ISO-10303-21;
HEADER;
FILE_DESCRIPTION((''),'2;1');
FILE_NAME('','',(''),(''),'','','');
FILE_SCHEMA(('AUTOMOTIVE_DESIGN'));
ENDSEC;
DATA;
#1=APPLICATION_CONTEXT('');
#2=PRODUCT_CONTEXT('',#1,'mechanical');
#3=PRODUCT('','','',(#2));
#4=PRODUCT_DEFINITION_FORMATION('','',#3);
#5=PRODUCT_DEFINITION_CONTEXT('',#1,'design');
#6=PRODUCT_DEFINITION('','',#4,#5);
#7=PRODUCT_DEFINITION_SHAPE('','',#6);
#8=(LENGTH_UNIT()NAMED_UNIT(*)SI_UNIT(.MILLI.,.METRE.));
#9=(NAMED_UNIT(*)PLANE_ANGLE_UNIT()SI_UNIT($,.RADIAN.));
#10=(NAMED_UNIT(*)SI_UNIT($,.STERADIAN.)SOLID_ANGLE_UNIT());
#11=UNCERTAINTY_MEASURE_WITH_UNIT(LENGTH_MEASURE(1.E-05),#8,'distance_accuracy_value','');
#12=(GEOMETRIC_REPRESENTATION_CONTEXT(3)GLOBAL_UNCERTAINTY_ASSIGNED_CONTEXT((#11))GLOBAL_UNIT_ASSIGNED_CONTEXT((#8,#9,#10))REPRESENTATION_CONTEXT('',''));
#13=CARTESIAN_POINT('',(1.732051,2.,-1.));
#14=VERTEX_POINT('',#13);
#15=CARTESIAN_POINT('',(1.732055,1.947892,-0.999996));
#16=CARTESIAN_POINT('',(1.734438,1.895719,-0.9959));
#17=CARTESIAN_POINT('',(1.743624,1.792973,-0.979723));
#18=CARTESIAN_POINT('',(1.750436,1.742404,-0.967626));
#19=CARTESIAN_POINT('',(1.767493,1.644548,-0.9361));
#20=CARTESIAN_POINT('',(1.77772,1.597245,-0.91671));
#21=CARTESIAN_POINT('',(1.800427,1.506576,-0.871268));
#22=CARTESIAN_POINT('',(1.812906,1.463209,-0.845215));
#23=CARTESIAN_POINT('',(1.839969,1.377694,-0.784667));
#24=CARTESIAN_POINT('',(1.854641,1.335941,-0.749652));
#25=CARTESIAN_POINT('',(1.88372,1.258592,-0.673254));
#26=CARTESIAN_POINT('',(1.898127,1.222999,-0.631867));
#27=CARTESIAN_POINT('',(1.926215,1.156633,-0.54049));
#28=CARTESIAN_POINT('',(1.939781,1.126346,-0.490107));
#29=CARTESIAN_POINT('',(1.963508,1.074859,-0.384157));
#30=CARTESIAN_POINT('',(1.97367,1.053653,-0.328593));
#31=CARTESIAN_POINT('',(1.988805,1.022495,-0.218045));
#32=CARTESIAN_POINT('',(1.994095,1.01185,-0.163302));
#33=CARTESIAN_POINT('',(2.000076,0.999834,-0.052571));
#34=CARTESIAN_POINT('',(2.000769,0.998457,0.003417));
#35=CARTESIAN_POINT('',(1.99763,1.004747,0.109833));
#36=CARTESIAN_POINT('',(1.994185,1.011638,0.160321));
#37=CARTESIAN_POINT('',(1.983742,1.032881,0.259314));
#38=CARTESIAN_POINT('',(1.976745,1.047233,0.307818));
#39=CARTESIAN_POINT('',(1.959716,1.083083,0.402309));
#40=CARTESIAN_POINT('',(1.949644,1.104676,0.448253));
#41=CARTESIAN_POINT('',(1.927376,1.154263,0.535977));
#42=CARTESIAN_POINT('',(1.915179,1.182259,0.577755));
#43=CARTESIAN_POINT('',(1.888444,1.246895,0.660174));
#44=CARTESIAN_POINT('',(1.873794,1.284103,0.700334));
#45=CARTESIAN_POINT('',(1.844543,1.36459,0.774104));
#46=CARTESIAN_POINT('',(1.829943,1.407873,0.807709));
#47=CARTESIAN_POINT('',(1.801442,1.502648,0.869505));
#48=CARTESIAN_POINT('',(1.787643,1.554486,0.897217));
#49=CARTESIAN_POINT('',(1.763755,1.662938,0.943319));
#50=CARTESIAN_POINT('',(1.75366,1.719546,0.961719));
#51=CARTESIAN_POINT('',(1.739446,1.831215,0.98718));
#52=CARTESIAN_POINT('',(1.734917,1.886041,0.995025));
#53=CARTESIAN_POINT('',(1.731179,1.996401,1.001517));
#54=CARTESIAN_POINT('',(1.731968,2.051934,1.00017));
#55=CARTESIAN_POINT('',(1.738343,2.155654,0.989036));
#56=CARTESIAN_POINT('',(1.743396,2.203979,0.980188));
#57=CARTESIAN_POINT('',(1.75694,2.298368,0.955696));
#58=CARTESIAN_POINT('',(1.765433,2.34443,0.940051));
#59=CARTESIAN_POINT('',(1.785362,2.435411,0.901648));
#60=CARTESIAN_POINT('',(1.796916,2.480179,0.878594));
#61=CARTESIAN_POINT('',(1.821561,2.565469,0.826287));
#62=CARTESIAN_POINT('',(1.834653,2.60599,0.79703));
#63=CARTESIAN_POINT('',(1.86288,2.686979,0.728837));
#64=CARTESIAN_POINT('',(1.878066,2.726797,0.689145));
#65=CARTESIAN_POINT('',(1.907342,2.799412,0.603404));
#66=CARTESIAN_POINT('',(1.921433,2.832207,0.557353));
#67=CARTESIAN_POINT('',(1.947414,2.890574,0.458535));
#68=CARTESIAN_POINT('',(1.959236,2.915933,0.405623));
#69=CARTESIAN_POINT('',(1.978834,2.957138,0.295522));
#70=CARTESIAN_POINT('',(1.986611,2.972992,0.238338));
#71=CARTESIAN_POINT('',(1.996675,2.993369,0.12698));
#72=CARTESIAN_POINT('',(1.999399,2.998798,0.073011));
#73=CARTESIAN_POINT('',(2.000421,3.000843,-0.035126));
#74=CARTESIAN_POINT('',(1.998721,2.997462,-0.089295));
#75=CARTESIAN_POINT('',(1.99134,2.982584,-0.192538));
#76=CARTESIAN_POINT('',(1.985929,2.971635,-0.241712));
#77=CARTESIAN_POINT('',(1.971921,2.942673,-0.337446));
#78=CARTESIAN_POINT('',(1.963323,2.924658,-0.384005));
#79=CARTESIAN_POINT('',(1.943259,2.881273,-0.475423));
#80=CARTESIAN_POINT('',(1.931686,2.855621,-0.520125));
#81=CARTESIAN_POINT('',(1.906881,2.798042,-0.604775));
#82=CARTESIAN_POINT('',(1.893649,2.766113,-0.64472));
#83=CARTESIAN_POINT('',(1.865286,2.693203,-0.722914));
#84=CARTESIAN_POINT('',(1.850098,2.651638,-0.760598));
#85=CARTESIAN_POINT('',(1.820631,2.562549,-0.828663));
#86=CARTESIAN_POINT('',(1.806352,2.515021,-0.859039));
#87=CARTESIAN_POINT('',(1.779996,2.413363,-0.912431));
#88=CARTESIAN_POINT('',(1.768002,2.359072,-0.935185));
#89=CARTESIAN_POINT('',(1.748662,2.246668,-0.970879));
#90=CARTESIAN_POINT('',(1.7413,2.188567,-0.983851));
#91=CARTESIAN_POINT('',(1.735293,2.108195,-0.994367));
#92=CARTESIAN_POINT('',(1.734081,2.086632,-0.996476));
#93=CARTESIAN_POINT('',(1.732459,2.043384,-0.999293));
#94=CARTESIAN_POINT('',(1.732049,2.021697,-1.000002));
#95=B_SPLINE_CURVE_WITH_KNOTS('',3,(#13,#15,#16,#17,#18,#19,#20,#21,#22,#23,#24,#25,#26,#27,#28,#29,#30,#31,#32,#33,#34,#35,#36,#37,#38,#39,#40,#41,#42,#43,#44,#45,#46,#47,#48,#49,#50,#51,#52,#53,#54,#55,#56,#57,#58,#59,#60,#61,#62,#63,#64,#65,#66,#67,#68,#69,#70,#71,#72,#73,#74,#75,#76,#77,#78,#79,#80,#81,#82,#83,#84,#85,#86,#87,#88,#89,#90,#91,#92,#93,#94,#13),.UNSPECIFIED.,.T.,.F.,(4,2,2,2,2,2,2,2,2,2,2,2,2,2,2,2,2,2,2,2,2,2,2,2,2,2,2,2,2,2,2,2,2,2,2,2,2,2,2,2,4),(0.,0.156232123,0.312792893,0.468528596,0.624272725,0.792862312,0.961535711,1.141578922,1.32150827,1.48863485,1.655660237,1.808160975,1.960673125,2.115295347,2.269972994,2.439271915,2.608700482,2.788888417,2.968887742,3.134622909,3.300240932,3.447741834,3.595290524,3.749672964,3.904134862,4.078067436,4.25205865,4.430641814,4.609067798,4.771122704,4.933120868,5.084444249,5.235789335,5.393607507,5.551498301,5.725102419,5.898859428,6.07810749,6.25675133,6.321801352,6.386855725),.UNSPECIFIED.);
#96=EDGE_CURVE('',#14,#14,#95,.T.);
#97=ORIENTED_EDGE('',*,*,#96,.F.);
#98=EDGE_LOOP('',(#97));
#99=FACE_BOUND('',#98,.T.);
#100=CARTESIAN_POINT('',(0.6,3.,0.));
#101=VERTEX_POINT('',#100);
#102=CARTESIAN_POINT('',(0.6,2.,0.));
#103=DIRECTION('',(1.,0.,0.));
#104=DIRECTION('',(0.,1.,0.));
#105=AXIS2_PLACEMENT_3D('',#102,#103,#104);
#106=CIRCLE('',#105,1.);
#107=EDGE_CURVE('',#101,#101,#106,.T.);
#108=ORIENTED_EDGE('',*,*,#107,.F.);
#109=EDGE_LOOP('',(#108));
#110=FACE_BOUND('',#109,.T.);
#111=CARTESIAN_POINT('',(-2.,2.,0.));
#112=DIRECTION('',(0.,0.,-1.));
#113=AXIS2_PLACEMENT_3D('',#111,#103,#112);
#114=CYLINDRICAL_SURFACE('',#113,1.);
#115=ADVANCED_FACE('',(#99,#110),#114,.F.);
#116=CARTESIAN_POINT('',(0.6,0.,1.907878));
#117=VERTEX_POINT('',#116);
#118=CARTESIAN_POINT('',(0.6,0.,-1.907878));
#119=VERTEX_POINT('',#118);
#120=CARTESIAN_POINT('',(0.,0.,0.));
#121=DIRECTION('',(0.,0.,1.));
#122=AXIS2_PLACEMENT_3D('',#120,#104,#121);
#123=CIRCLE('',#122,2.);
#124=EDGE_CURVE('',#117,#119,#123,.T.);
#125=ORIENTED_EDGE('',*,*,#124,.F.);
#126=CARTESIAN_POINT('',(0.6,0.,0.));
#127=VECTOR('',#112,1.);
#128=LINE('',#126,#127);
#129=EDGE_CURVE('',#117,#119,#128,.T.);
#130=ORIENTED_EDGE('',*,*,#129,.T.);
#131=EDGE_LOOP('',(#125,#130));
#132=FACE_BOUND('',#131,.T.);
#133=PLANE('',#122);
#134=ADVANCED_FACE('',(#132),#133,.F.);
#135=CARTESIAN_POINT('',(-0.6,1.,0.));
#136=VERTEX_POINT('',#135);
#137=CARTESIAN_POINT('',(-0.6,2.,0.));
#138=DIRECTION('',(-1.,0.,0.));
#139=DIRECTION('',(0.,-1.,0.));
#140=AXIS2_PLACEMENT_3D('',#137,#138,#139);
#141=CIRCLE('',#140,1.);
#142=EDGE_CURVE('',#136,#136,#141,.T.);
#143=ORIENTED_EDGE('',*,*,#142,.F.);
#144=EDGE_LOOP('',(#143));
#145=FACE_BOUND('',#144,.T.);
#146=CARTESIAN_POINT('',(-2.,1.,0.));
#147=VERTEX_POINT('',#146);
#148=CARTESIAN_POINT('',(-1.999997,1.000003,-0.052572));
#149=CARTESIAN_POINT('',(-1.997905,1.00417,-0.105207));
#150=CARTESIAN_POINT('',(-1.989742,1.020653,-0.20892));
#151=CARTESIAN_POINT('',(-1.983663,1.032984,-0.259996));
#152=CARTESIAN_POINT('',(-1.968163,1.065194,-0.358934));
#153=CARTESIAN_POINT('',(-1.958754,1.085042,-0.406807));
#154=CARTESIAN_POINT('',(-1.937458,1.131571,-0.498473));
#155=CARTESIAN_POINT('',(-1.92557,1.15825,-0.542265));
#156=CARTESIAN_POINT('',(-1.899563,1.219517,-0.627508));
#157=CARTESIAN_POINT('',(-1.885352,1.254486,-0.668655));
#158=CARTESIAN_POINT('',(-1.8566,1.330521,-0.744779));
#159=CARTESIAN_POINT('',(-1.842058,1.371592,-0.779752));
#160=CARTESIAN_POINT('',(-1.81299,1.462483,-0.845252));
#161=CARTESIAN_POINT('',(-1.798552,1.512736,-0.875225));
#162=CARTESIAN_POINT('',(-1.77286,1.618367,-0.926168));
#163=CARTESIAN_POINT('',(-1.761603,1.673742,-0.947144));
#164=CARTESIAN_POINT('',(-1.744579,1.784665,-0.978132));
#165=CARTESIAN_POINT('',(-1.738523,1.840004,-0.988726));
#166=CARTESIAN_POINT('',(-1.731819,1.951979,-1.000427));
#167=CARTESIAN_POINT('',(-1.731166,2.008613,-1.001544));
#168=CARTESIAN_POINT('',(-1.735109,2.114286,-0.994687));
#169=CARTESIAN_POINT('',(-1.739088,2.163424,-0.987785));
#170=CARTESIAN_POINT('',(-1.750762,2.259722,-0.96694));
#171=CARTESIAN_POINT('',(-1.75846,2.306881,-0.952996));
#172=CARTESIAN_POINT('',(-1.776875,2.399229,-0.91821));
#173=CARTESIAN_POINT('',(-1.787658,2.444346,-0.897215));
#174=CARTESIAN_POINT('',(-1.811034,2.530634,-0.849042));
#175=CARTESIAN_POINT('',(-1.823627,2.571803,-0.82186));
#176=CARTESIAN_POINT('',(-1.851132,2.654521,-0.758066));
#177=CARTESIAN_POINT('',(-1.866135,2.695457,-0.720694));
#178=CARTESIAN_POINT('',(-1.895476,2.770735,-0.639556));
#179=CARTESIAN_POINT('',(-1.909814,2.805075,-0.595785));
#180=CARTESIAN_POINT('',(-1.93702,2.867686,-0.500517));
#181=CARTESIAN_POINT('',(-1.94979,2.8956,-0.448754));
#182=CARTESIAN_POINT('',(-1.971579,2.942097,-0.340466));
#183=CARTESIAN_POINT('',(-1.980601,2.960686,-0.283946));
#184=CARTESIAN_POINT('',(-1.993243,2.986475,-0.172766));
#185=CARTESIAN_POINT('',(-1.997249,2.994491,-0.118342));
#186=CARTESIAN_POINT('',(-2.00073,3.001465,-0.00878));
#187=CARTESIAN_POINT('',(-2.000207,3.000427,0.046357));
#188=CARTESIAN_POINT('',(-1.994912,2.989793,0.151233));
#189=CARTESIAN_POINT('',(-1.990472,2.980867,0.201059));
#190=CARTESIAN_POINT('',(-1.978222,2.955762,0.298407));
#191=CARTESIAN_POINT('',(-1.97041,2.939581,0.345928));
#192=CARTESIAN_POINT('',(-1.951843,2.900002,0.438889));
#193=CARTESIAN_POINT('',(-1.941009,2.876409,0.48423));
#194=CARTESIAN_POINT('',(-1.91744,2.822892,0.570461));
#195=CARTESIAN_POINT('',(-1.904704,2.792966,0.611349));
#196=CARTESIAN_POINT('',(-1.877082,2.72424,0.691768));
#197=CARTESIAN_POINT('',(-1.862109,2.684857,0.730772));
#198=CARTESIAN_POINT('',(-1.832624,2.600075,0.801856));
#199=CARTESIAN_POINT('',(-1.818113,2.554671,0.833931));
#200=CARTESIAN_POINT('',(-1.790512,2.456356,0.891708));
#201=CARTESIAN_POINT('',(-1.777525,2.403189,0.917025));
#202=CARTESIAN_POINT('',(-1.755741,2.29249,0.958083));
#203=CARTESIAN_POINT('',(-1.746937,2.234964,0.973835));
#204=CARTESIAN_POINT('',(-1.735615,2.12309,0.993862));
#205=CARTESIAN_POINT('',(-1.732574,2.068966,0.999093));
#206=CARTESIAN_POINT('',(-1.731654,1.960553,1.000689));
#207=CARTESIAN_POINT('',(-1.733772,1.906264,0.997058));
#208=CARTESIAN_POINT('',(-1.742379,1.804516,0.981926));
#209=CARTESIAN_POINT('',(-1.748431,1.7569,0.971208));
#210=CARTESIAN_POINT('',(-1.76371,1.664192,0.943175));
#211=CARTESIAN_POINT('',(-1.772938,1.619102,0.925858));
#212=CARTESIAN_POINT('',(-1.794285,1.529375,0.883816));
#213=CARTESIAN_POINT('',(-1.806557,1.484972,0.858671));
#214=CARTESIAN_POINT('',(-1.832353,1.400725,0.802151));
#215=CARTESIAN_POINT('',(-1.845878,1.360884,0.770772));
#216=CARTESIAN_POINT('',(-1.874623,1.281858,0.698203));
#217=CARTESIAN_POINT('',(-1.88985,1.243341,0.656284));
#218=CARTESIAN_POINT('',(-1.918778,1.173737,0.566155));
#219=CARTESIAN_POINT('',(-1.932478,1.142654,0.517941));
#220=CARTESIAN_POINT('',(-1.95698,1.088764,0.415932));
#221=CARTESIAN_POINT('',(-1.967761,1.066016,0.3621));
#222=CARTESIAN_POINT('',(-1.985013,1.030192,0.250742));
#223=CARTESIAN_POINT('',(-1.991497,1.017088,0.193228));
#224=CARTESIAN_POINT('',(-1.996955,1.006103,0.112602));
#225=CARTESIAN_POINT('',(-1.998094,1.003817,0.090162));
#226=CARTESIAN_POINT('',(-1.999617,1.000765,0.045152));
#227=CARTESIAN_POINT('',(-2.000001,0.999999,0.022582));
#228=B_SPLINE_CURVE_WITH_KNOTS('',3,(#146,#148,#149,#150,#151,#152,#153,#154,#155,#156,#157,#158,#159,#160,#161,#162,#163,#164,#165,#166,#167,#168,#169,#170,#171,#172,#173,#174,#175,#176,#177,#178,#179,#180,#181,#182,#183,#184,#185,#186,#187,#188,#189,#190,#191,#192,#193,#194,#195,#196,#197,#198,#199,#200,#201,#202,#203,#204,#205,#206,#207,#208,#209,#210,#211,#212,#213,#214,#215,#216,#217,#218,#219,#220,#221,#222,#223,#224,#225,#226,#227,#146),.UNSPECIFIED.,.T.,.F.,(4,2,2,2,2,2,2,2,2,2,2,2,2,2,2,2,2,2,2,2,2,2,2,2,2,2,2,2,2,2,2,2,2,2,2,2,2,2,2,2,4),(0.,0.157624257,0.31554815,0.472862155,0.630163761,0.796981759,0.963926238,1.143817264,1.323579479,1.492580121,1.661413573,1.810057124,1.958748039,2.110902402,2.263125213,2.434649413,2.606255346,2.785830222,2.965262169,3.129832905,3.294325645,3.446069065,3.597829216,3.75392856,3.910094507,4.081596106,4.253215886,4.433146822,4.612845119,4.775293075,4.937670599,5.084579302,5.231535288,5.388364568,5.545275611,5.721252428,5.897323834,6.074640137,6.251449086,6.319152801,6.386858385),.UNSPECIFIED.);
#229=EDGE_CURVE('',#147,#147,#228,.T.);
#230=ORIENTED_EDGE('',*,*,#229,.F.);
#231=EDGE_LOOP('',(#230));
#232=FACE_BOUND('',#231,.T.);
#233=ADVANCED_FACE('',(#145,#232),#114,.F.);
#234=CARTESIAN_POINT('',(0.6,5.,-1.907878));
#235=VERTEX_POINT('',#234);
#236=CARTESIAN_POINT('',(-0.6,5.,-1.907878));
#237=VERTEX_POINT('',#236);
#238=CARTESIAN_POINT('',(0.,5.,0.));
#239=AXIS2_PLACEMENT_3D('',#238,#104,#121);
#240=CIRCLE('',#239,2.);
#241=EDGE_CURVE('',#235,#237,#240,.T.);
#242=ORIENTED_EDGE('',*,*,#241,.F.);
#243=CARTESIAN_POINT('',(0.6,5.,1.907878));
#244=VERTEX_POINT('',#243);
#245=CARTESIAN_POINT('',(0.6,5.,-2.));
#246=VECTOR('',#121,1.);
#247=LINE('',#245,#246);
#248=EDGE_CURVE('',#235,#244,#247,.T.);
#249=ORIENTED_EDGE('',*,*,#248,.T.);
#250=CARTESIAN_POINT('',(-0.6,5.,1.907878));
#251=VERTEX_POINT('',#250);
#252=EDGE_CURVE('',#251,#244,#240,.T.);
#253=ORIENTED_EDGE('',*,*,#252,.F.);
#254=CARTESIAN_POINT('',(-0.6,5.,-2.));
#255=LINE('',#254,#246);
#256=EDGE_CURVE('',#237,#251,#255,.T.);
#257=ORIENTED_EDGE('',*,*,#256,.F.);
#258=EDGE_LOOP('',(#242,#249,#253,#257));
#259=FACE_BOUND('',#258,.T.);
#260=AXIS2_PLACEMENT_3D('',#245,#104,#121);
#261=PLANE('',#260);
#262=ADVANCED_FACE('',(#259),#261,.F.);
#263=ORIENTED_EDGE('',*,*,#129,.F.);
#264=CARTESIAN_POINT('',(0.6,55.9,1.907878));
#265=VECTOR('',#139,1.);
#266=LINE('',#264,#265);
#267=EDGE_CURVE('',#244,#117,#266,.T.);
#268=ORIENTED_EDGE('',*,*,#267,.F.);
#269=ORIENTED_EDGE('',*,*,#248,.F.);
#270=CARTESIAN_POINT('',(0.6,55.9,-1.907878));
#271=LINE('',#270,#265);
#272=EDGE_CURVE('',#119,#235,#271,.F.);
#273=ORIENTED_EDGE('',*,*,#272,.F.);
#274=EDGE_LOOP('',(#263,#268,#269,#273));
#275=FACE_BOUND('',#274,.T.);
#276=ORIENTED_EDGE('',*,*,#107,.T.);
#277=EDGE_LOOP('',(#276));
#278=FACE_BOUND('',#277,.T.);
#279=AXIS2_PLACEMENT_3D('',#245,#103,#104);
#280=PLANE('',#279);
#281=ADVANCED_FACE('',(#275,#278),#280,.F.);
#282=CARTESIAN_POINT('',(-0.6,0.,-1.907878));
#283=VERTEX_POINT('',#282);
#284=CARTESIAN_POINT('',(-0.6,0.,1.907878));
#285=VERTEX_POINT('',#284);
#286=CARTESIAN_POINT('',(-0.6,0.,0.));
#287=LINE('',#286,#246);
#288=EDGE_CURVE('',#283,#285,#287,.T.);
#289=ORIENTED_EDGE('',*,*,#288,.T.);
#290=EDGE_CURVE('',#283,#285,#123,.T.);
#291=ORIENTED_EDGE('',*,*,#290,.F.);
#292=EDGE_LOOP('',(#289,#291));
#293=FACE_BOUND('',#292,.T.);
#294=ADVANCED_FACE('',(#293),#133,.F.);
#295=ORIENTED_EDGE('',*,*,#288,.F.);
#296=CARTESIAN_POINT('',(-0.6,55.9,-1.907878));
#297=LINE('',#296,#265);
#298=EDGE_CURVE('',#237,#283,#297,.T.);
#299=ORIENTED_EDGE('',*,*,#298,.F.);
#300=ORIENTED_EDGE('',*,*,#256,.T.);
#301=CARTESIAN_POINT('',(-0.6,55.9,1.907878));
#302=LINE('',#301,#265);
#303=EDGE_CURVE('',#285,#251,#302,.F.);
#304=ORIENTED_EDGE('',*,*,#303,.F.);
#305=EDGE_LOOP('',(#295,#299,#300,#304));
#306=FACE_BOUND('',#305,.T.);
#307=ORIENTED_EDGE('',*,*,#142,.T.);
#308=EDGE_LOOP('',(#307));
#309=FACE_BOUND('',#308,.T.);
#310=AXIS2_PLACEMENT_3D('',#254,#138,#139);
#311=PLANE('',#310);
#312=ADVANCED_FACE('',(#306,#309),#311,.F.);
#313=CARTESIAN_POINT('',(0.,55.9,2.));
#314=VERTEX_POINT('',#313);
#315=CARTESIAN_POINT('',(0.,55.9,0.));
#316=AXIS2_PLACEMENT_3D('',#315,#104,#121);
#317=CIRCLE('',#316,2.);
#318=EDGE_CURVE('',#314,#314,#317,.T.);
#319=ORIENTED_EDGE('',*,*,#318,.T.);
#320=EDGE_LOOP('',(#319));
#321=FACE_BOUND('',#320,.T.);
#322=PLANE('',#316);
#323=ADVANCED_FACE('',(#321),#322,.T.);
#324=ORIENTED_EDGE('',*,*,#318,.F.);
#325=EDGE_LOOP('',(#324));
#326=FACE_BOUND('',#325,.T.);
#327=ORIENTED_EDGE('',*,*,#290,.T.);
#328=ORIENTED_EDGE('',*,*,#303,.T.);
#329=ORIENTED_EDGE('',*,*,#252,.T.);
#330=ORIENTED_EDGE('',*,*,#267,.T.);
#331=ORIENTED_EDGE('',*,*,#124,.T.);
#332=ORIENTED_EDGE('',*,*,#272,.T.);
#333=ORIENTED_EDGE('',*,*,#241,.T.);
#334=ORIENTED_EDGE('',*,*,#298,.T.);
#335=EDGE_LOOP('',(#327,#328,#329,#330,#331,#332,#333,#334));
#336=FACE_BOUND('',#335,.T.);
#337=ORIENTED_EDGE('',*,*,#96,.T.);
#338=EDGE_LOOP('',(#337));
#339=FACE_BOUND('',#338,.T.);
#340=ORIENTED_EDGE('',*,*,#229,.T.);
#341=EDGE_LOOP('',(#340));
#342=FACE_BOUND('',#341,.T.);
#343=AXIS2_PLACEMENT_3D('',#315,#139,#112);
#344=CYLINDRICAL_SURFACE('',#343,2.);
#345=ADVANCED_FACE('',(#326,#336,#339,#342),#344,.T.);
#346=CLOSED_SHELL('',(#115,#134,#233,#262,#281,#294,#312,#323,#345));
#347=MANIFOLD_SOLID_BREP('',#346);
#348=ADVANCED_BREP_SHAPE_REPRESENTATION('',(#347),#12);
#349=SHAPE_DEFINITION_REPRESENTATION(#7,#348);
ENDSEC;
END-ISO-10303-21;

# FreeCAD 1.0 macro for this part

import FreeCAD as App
import Part
import Sketcher
from FreeCAD import Vector

doc = App.newDocument("Part")
body = doc.addObject("PartDesign::Body", "Body")

sketch1 = doc.addObject("Sketcher::SketchObject", "Sketch")
body.addObject(sketch1)
sketch1.AttachmentSupport = (doc.XZ_Plane, [""])
sketch1.MapMode = "FlatFace"
sketch1.addGeometry(Part.Circle(Vector(0, 0, 0), Vector(0, 0, 1), 2), False)
sketch1.addConstraint(Sketcher.Constraint("Coincident", 0, 3, -1, 1))
sketch1.addConstraint(Sketcher.Constraint("Diameter", 0, 4.0))
pad1 = doc.addObject("PartDesign::Pad", "Pad")
body.addObject(pad1)
pad1.Profile = sketch1
pad1.Length = 55.9
pad1.Reversed = True

sketch2 = doc.addObject("Sketcher::SketchObject", "Sketch001")
body.addObject(sketch2)
sketch2.AttachmentSupport = (doc.XY_Plane, [""])
sketch2.MapMode = "FlatFace"
sketch2.addGeometry(Part.LineSegment(Vector(-0.6, 5, 0), Vector(-0.6, -5, 0)), False)
sketch2.addGeometry(Part.LineSegment(Vector(-0.6, -5, 0), Vector(0.6, -5, 0)), False)
sketch2.addGeometry(Part.LineSegment(Vector(0.6, -5, 0), Vector(0.6, 5, 0)), False)
sketch2.addGeometry(Part.LineSegment(Vector(0.6, 5, 0), Vector(-0.6, 5, 0)), False)
sketch2.addConstraint(Sketcher.Constraint("Coincident", 0, 2, 1, 1))
sketch2.addConstraint(Sketcher.Constraint("Coincident", 1, 2, 2, 1))
sketch2.addConstraint(Sketcher.Constraint("Coincident", 2, 2, 3, 1))
sketch2.addConstraint(Sketcher.Constraint("Coincident", 3, 2, 0, 1))
sketch2.addConstraint(Sketcher.Constraint("Vertical", 0))
sketch2.addConstraint(Sketcher.Constraint("Horizontal", 1))
sketch2.addConstraint(Sketcher.Constraint("Vertical", 2))
sketch2.addConstraint(Sketcher.Constraint("Horizontal", 3))
sketch2.addConstraint(Sketcher.Constraint("Symmetric", 0, 2, 2, 2, -1, 1))
sketch2.addConstraint(Sketcher.Constraint("DistanceY", 0, 2, 0, 1, 10.0))
sketch2.addConstraint(Sketcher.Constraint("DistanceX", 1, 1, 1, 2, 1.2))
pocket1 = doc.addObject("PartDesign::Pocket", "Pocket")
body.addObject(pocket1)
pocket1.Profile = sketch2
pocket1.Type = "ThroughAll"
pocket1.Midplane = True

sketch3 = doc.addObject("Sketcher::SketchObject", "Sketch002")
body.addObject(sketch3)
sketch3.AttachmentSupport = (doc.YZ_Plane, [""])
sketch3.MapMode = "FlatFace"
sketch3.addGeometry(Part.Circle(Vector(2, 0, 0), Vector(0, 0, 1), 1), False)
sketch3.addConstraint(Sketcher.Constraint("PointOnObject", 0, 3, -1))
sketch3.addConstraint(Sketcher.Constraint("Diameter", 0, 2.0))
sketch3.addConstraint(Sketcher.Constraint("DistanceX", -1, 1, 0, 3, 2.0))
pocket2 = doc.addObject("PartDesign::Pocket", "Pocket001")
body.addObject(pocket2)
pocket2.Profile = sketch3
pocket2.Type = "ThroughAll"
pocket2.Midplane = True

doc.recompute()
